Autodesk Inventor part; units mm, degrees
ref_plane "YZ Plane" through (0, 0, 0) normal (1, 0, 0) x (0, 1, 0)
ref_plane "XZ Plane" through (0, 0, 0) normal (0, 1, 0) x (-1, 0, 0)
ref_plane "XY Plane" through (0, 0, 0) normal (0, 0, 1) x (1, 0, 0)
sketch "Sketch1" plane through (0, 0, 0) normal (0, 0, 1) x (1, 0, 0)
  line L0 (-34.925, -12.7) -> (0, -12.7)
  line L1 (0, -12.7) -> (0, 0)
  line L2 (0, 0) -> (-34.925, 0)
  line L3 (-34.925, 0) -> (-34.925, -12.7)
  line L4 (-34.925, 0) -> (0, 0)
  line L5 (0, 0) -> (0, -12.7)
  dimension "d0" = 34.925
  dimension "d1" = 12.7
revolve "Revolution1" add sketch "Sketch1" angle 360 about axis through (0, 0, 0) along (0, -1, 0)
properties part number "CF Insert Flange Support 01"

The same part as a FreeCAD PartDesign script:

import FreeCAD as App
import Part
import Sketcher

V = App.Vector
Q = App.Units.Quantity


def add_polygon(sketch, points):
    """Adds a closed chain of lines whose ends are joined by coincident constraints."""
    first, n = sketch.GeometryCount, len(points)
    for a, b in zip(points, points[1:] + points[:1]):
        sketch.addGeometry(Part.LineSegment(App.Vector(*a, 0), App.Vector(*b, 0)), False)
    for i in range(n):
        sketch.addConstraint(Sketcher.Constraint("Coincident", first + i, 2, first + (i + 1) % n, 1))

doc = App.newDocument("Part")
body = doc.addObject("PartDesign::Body", "Body")

# Sketch on XY plane
sketch1 = doc.addObject("Sketcher::SketchObject", "Sketch")
body.addObject(sketch1)
sketch1.AttachmentSupport = (doc.XY_Plane, [""])
sketch1.MapMode = "FlatFace"
add_polygon(sketch1, [(-35, 0), (-35, -13), (0, -13), (0, 0)])  # lines 0-3
sketch1.addConstraint([
    Sketcher.Constraint("Vertical", 0),
    Sketcher.Constraint("Horizontal", 1),
    Sketcher.Constraint("Vertical", 2),
    Sketcher.Constraint("Horizontal", 3),
    Sketcher.Constraint("Coincident", 2, 2, -1, 1),
    Sketcher.Constraint("DistanceY", 0, 2, 0, 1, Q("0.5 in")),
    Sketcher.Constraint("DistanceX", 1, 1, 1, 2, Q("1.375 in")),
])
revolution = doc.addObject("PartDesign::Revolution", "Revolution")
body.addObject(revolution)
revolution.Profile = sketch1
revolution.ReferenceAxis = (sketch1, ["V_Axis"])
revolution.Angle = 360

doc.recompute()
